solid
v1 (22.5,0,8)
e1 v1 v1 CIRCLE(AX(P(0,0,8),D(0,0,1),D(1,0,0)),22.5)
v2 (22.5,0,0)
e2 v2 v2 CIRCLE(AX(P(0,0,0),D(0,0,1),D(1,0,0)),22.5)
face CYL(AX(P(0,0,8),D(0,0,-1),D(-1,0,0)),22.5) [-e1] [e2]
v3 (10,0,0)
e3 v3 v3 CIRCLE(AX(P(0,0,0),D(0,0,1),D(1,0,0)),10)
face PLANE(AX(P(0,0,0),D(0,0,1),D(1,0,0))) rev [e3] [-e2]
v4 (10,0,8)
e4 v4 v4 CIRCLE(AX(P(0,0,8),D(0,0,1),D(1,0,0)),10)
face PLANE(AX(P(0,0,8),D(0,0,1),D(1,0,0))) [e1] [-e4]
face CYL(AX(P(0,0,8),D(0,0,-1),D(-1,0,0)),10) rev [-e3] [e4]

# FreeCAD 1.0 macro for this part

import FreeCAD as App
import Part
import Sketcher

V = App.Vector

doc = App.newDocument("Part")
body = doc.addObject("PartDesign::Body", "Body")

# Sketch on XY plane
sketch1 = body.newObject("Sketcher::SketchObject", "Sketch")
sketch1.AttachmentSupport = (doc.getObject("XY_Plane"), [""])
sketch1.MapMode = "FlatFace"
sketch1.addGeometry([
    Part.Circle(V(0, 0, 0), V(0, 0, 1), 22),
    Part.Circle(V(0, 0, 0), V(0, 0, 1), 10),
], False)
sketch1.addConstraint([
    Sketcher.Constraint("Coincident", 0, 3, -1, 1),
    Sketcher.Constraint("Coincident", 1, 3, -1, 1),
    Sketcher.Constraint("Diameter", 0, 45.0),
    Sketcher.Constraint("Diameter", 1, 20.0),
])
pad1 = body.newObject("PartDesign::Pad", "Pad")
pad1.Profile = sketch1
pad1.Length = 8

doc.recompute()
